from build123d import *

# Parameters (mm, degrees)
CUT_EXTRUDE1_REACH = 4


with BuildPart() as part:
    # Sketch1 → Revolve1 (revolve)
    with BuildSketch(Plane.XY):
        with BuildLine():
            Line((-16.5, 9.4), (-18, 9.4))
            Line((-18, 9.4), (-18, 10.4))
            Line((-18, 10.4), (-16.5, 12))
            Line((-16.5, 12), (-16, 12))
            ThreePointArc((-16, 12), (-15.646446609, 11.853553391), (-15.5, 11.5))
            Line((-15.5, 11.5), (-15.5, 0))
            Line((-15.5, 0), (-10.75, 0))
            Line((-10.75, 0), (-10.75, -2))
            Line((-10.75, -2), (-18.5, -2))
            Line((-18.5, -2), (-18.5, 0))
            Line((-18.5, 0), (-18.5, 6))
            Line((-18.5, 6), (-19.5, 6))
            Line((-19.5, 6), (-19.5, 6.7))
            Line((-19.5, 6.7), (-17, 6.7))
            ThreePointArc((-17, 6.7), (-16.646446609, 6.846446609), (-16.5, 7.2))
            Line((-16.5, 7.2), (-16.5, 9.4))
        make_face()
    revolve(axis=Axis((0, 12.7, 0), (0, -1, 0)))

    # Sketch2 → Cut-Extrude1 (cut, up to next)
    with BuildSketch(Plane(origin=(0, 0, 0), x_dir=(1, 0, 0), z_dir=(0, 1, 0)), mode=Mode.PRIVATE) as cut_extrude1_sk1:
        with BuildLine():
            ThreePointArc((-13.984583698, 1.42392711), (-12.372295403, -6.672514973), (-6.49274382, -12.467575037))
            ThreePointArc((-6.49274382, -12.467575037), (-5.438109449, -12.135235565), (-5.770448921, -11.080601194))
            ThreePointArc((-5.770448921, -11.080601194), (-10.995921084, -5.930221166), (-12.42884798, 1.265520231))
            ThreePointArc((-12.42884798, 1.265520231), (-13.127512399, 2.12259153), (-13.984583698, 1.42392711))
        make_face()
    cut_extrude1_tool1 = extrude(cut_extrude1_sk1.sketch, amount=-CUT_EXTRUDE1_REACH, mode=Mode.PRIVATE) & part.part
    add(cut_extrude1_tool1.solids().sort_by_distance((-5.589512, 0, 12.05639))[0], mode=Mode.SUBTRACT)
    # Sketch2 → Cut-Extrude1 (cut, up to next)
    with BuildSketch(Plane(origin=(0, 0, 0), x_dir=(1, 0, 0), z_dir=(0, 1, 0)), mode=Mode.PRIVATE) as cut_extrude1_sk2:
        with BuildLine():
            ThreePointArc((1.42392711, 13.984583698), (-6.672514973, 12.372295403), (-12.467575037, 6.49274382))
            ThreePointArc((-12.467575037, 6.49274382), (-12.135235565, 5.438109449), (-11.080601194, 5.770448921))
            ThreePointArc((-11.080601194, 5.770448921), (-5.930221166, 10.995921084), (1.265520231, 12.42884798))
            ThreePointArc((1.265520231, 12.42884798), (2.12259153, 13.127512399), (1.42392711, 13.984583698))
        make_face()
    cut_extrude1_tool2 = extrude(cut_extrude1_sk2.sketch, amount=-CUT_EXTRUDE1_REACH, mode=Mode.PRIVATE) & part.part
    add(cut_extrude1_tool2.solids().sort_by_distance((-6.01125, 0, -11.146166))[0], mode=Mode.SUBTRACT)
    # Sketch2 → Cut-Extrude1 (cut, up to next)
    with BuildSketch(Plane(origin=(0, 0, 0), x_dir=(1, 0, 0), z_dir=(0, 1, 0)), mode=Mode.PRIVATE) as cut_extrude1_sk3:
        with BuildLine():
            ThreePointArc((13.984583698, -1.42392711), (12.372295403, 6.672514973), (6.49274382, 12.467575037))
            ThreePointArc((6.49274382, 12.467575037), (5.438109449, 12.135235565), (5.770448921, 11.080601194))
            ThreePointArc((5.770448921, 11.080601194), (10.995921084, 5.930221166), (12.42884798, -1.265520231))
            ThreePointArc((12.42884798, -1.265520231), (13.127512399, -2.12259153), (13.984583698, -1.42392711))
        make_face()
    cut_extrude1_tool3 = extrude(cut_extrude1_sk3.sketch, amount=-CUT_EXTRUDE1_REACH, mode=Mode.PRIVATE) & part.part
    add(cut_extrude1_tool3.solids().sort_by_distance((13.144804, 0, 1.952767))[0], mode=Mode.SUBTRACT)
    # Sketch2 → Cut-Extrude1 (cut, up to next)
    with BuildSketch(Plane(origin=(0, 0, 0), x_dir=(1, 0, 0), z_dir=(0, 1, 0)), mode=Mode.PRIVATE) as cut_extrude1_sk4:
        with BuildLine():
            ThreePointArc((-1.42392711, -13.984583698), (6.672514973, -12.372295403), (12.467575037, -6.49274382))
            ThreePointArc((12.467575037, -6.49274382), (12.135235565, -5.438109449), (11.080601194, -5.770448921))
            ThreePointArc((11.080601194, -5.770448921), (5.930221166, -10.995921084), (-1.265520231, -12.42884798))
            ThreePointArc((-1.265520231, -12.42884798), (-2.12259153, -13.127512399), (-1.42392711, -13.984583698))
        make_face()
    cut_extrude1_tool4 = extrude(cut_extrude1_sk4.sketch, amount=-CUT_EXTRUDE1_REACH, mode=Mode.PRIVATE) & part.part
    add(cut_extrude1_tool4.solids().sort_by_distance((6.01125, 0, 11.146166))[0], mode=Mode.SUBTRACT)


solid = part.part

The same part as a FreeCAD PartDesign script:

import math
import FreeCAD as App
import Part
import Sketcher

V = App.Vector

doc = App.newDocument("Part")
body = doc.addObject("PartDesign::Body", "Body")

# Sketch on XY plane
sketch1 = body.newObject("Sketcher::SketchObject", "Sketch")
sketch1.AttachmentSupport = (doc.getObject("XY_Plane"), [""])
sketch1.MapMode = "FlatFace"
sketch1.addGeometry([
    Part.LineSegment(V(-18, 9.4, 0), V(-16.5, 9.4, 0)),  # 0
    Part.LineSegment(V(-16.5, 9.4, 0), V(-16.5, 7.2, 0)),  # 1
    Part.ArcOfCircle(Part.Circle(V(-17, 7.2, 0), V(0, 0, 1), 0.5), math.radians(-90), math.radians(0)),  # 2
    Part.LineSegment(V(-17, 6.7, 0), V(-19.5, 6.7, 0)),  # 3
    Part.LineSegment(V(-19.5, 6.7, 0), V(-19.5, 6, 0)),  # 4
    Part.LineSegment(V(-19.5, 6, 0), V(-18.5, 6, 0)),  # 5
    Part.LineSegment(V(-18.5, 6, 0), V(-18.5, -2, 0)),  # 6
    Part.LineSegment(V(-18.5, -2, 0), V(-10.75, -2, 0)),  # 7
    Part.LineSegment(V(-10.75, -2, 0), V(-10.75, 0, 0)),  # 8
    Part.LineSegment(V(-10.75, 0, 0), V(-15.5, 0, 0)),  # 9
    Part.LineSegment(V(-15.5, 0, 0), V(-15.5, 11.5, 0)),  # 10
    Part.ArcOfCircle(Part.Circle(V(-16, 11.5, 0), V(0, 0, 1), 0.5), math.radians(0), math.radians(90)),  # 11
    Part.LineSegment(V(-16, 12, 0), V(-16.5, 12, 0)),  # 12
    Part.LineSegment(V(-16.5, 12, 0), V(-18, 10.4, 0)),  # 13
    Part.LineSegment(V(-18, 10.4, 0), V(-18, 9.4, 0)),  # 14
], False)
sketch1.addConstraint([
    Sketcher.Constraint("Coincident", 0, 2, 1, 1),
    Sketcher.Constraint("Tangent", 1, 2, 2, 2),
    Sketcher.Constraint("Tangent", 2, 1, 3, 1),
    Sketcher.Constraint("Coincident", 3, 2, 4, 1),
    Sketcher.Constraint("Coincident", 4, 2, 5, 1),
    Sketcher.Constraint("Coincident", 5, 2, 6, 1),
    Sketcher.Constraint("Coincident", 6, 2, 7, 1),
    Sketcher.Constraint("Coincident", 7, 2, 8, 1),
    Sketcher.Constraint("Coincident", 8, 2, 9, 1),
    Sketcher.Constraint("Coincident", 9, 2, 10, 1),
    Sketcher.Constraint("Tangent", 10, 2, 11, 1),
    Sketcher.Constraint("Tangent", 11, 2, 12, 1),
    Sketcher.Constraint("Coincident", 12, 2, 13, 1),
    Sketcher.Constraint("Coincident", 13, 2, 14, 1),
    Sketcher.Constraint("Coincident", 14, 2, 0, 1),
    Sketcher.Constraint("Horizontal", 0),
    Sketcher.Constraint("Vertical", 1),
    Sketcher.Constraint("Horizontal", 3),
    Sketcher.Constraint("Vertical", 4),
    Sketcher.Constraint("Horizontal", 5),
    Sketcher.Constraint("Vertical", 6),
    Sketcher.Constraint("Horizontal", 7),
    Sketcher.Constraint("Vertical", 8),
    Sketcher.Constraint("Horizontal", 9),
    Sketcher.Constraint("Vertical", 10),
    Sketcher.Constraint("Horizontal", 12),
    Sketcher.Constraint("Vertical", 14),
    Sketcher.Constraint("Equal", 2, 11),
    Sketcher.Constraint("PointOnObject", 8, 2, -1),
    Sketcher.Constraint("Vertical", 1, 2, 12, 2),
    Sketcher.Constraint("Equal", 5, 14),
    Sketcher.Constraint("Radius", 2, 0.5),
    Sketcher.Constraint("DistanceX", 5, 1, 5, 2, 1.0),
    Sketcher.Constraint("DistanceY", 6, 2, 6, 1, 8.0),
    Sketcher.Constraint("DistanceY", 8, 1, 8, 2, 2.0),
    Sketcher.Constraint("DistanceX", 0, 1, 0, 2, 1.5),
    Sketcher.Constraint("DistanceX", 3, 2, 3, 1, 2.5),
    Sketcher.Constraint("DistanceX", 12, 2, 12, 1, 0.5),
    Sketcher.Constraint("DistanceY", 1, 2, 1, 1, 2.2),
    Sketcher.Constraint("DistanceY", 4, 2, 4, 1, 0.7),
    Sketcher.Constraint("DistanceY", 10, 1, 10, 2, 11.5),
    Sketcher.Constraint("DistanceX", 2, 3, -1, 1, 17.0),
    Sketcher.Constraint("DistanceX", 7, 1, 7, 2, 7.75),
])
revolution = body.newObject("PartDesign::Revolution", "Revolution")
revolution.Profile = sketch1
revolution.ReferenceAxis = (sketch1, ["V_Axis"])
revolution.Angle = 360

# Sketch on XZ plane
sketch2 = body.newObject("Sketcher::SketchObject", "Sketch001")
sketch2.AttachmentSupport = (doc.getObject("XZ_Plane"), [""])
sketch2.MapMode = "FlatFace"
sketch2.addGeometry([
    Part.ArcOfCircle(Part.Circle(V(0, 0, 0), V(0, 0, 1), 14.1), math.radians(118), math.radians(186)),
    Part.ArcOfCircle(Part.Circle(V(-6.1, 11.8, 0), V(0, 0, 1), 0.8), math.radians(-62), math.radians(118)),
    Part.ArcOfCircle(Part.Circle(V(0, 0, 0), V(0, 0, 1), 12.5), math.radians(118), math.radians(186)),
    Part.ArcOfCircle(Part.Circle(V(-13.2, -1.3, 0), V(0, 0, 1), 0.8), math.radians(-174), math.radians(6)),
], False)
sketch2.addConstraint([
    Sketcher.Constraint("Tangent", 0, 1, 1, 2),
    Sketcher.Constraint("Tangent", 1, 1, 2, 1),
    Sketcher.Constraint("Tangent", 2, 2, 3, 2),
    Sketcher.Constraint("Tangent", 3, 1, 0, 2),
    Sketcher.Constraint("Coincident", 0, 3, -1, 1),
    Sketcher.Constraint("Coincident", 2, 3, -1, 1),
    Sketcher.Constraint("Radius", 0, 14.05689),
    Sketcher.Constraint("Radius", 1, 0.78189),
    Sketcher.Constraint("DistanceY", -1, 1, 1, 1, 11.080601),
    Sketcher.Constraint("DistanceY", 3, 3, 0, 1, 13.812299),
])
pocket1 = body.newObject("PartDesign::Pocket", "Pocket")
pocket1.Profile = sketch2
pocket1.Type = "UpToFirst"
pocket1.Reversed = True

# Sketch on XZ plane
sketch3 = body.newObject("Sketcher::SketchObject", "Sketch002")
sketch3.AttachmentSupport = (doc.getObject("XZ_Plane"), [""])
sketch3.MapMode = "FlatFace"
sketch3.addGeometry([
    Part.ArcOfCircle(Part.Circle(V(0, 0, 0), V(0, 0, 1), 14.1), math.radians(-152), math.radians(-84)),
    Part.ArcOfCircle(Part.Circle(V(-11.8, -6.1, 0), V(0, 0, 1), 0.8), math.radians(28), math.radians(208)),
    Part.ArcOfCircle(Part.Circle(V(0, 0, 0), V(0, 0, 1), 12.5), math.radians(-152), math.radians(-84)),
    Part.ArcOfCircle(Part.Circle(V(1.3, -13.2, 0), V(0, 0, 1), 0.8), math.radians(-84), math.radians(96)),
], False)
sketch3.addConstraint([
    Sketcher.Constraint("Tangent", 0, 1, 1, 2),
    Sketcher.Constraint("Tangent", 1, 1, 2, 1),
    Sketcher.Constraint("Tangent", 2, 2, 3, 2),
    Sketcher.Constraint("Tangent", 3, 1, 0, 2),
    Sketcher.Constraint("Coincident", 0, 3, -1, 1),
    Sketcher.Constraint("Coincident", 2, 3, -1, 1),
    Sketcher.Constraint("Radius", 0, 14.05689),
    Sketcher.Constraint("Radius", 1, 0.78189),
    Sketcher.Constraint("DistanceX", 1, 1, -1, 1, 11.080601),
    Sketcher.Constraint("DistanceX", 0, 1, 3, 3, 13.812299),
])
pocket2 = body.newObject("PartDesign::Pocket", "Pocket001")
pocket2.Profile = sketch3
pocket2.Type = "UpToFirst"
pocket2.Reversed = True

# Sketch on XZ plane
sketch4 = body.newObject("Sketcher::SketchObject", "Sketch003")
sketch4.AttachmentSupport = (doc.getObject("XZ_Plane"), [""])
sketch4.MapMode = "FlatFace"
sketch4.addGeometry([
    Part.ArcOfCircle(Part.Circle(V(0, 0, 0), V(0, 0, 1), 14.1), math.radians(-62), math.radians(6)),
    Part.ArcOfCircle(Part.Circle(V(6.1, -11.8, 0), V(0, 0, 1), 0.8), math.radians(118), math.radians(298)),
    Part.ArcOfCircle(Part.Circle(V(0, 0, 0), V(0, 0, 1), 12.5), math.radians(-62), math.radians(6)),
    Part.ArcOfCircle(Part.Circle(V(13.2, 1.3, 0), V(0, 0, 1), 0.8), math.radians(6), math.radians(186)),
], False)
sketch4.addConstraint([
    Sketcher.Constraint("Tangent", 0, 1, 1, 2),
    Sketcher.Constraint("Tangent", 1, 1, 2, 1),
    Sketcher.Constraint("Tangent", 2, 2, 3, 2),
    Sketcher.Constraint("Tangent", 3, 1, 0, 2),
    Sketcher.Constraint("Coincident", 0, 3, -1, 1),
    Sketcher.Constraint("Coincident", 2, 3, -1, 1),
    Sketcher.Constraint("Radius", 0, 14.05689),
    Sketcher.Constraint("Radius", 1, 0.78189),
    Sketcher.Constraint("DistanceY", 1, 1, -1, 1, 11.080601),
    Sketcher.Constraint("DistanceY", 0, 1, 3, 3, 13.812299),
])
pocket3 = body.newObject("PartDesign::Pocket", "Pocket002")
pocket3.Profile = sketch4
pocket3.Type = "UpToFirst"
pocket3.Reversed = True

# Sketch on XZ plane
sketch5 = body.newObject("Sketcher::SketchObject", "Sketch004")
sketch5.AttachmentSupport = (doc.getObject("XZ_Plane"), [""])
sketch5.MapMode = "FlatFace"
sketch5.addGeometry([
    Part.ArcOfCircle(Part.Circle(V(0, 0, 0), V(0, 0, 1), 14.1), math.radians(28), math.radians(96)),
    Part.ArcOfCircle(Part.Circle(V(11.8, 6.1, 0), V(0, 0, 1), 0.8), math.radians(-152), math.radians(28)),
    Part.ArcOfCircle(Part.Circle(V(0, 0, 0), V(0, 0, 1), 12.5), math.radians(28), math.radians(96)),
    Part.ArcOfCircle(Part.Circle(V(-1.3, 13.2, 0), V(0, 0, 1), 0.8), math.radians(96), math.radians(276)),
], False)
sketch5.addConstraint([
    Sketcher.Constraint("Tangent", 0, 1, 1, 2),
    Sketcher.Constraint("Tangent", 1, 1, 2, 1),
    Sketcher.Constraint("Tangent", 2, 2, 3, 2),
    Sketcher.Constraint("Tangent", 3, 1, 0, 2),
    Sketcher.Constraint("Coincident", 0, 3, -1, 1),
    Sketcher.Constraint("Coincident", 2, 3, -1, 1),
    Sketcher.Constraint("Radius", 0, 14.05689),
    Sketcher.Constraint("Radius", 1, 0.78189),
    Sketcher.Constraint("DistanceX", -1, 1, 1, 1, 11.080601),
    Sketcher.Constraint("DistanceX", 3, 3, 0, 1, 13.812299),
])
pocket4 = body.newObject("PartDesign::Pocket", "Pocket003")
pocket4.Profile = sketch5
pocket4.Type = "UpToFirst"
pocket4.Reversed = True

doc.recompute()
